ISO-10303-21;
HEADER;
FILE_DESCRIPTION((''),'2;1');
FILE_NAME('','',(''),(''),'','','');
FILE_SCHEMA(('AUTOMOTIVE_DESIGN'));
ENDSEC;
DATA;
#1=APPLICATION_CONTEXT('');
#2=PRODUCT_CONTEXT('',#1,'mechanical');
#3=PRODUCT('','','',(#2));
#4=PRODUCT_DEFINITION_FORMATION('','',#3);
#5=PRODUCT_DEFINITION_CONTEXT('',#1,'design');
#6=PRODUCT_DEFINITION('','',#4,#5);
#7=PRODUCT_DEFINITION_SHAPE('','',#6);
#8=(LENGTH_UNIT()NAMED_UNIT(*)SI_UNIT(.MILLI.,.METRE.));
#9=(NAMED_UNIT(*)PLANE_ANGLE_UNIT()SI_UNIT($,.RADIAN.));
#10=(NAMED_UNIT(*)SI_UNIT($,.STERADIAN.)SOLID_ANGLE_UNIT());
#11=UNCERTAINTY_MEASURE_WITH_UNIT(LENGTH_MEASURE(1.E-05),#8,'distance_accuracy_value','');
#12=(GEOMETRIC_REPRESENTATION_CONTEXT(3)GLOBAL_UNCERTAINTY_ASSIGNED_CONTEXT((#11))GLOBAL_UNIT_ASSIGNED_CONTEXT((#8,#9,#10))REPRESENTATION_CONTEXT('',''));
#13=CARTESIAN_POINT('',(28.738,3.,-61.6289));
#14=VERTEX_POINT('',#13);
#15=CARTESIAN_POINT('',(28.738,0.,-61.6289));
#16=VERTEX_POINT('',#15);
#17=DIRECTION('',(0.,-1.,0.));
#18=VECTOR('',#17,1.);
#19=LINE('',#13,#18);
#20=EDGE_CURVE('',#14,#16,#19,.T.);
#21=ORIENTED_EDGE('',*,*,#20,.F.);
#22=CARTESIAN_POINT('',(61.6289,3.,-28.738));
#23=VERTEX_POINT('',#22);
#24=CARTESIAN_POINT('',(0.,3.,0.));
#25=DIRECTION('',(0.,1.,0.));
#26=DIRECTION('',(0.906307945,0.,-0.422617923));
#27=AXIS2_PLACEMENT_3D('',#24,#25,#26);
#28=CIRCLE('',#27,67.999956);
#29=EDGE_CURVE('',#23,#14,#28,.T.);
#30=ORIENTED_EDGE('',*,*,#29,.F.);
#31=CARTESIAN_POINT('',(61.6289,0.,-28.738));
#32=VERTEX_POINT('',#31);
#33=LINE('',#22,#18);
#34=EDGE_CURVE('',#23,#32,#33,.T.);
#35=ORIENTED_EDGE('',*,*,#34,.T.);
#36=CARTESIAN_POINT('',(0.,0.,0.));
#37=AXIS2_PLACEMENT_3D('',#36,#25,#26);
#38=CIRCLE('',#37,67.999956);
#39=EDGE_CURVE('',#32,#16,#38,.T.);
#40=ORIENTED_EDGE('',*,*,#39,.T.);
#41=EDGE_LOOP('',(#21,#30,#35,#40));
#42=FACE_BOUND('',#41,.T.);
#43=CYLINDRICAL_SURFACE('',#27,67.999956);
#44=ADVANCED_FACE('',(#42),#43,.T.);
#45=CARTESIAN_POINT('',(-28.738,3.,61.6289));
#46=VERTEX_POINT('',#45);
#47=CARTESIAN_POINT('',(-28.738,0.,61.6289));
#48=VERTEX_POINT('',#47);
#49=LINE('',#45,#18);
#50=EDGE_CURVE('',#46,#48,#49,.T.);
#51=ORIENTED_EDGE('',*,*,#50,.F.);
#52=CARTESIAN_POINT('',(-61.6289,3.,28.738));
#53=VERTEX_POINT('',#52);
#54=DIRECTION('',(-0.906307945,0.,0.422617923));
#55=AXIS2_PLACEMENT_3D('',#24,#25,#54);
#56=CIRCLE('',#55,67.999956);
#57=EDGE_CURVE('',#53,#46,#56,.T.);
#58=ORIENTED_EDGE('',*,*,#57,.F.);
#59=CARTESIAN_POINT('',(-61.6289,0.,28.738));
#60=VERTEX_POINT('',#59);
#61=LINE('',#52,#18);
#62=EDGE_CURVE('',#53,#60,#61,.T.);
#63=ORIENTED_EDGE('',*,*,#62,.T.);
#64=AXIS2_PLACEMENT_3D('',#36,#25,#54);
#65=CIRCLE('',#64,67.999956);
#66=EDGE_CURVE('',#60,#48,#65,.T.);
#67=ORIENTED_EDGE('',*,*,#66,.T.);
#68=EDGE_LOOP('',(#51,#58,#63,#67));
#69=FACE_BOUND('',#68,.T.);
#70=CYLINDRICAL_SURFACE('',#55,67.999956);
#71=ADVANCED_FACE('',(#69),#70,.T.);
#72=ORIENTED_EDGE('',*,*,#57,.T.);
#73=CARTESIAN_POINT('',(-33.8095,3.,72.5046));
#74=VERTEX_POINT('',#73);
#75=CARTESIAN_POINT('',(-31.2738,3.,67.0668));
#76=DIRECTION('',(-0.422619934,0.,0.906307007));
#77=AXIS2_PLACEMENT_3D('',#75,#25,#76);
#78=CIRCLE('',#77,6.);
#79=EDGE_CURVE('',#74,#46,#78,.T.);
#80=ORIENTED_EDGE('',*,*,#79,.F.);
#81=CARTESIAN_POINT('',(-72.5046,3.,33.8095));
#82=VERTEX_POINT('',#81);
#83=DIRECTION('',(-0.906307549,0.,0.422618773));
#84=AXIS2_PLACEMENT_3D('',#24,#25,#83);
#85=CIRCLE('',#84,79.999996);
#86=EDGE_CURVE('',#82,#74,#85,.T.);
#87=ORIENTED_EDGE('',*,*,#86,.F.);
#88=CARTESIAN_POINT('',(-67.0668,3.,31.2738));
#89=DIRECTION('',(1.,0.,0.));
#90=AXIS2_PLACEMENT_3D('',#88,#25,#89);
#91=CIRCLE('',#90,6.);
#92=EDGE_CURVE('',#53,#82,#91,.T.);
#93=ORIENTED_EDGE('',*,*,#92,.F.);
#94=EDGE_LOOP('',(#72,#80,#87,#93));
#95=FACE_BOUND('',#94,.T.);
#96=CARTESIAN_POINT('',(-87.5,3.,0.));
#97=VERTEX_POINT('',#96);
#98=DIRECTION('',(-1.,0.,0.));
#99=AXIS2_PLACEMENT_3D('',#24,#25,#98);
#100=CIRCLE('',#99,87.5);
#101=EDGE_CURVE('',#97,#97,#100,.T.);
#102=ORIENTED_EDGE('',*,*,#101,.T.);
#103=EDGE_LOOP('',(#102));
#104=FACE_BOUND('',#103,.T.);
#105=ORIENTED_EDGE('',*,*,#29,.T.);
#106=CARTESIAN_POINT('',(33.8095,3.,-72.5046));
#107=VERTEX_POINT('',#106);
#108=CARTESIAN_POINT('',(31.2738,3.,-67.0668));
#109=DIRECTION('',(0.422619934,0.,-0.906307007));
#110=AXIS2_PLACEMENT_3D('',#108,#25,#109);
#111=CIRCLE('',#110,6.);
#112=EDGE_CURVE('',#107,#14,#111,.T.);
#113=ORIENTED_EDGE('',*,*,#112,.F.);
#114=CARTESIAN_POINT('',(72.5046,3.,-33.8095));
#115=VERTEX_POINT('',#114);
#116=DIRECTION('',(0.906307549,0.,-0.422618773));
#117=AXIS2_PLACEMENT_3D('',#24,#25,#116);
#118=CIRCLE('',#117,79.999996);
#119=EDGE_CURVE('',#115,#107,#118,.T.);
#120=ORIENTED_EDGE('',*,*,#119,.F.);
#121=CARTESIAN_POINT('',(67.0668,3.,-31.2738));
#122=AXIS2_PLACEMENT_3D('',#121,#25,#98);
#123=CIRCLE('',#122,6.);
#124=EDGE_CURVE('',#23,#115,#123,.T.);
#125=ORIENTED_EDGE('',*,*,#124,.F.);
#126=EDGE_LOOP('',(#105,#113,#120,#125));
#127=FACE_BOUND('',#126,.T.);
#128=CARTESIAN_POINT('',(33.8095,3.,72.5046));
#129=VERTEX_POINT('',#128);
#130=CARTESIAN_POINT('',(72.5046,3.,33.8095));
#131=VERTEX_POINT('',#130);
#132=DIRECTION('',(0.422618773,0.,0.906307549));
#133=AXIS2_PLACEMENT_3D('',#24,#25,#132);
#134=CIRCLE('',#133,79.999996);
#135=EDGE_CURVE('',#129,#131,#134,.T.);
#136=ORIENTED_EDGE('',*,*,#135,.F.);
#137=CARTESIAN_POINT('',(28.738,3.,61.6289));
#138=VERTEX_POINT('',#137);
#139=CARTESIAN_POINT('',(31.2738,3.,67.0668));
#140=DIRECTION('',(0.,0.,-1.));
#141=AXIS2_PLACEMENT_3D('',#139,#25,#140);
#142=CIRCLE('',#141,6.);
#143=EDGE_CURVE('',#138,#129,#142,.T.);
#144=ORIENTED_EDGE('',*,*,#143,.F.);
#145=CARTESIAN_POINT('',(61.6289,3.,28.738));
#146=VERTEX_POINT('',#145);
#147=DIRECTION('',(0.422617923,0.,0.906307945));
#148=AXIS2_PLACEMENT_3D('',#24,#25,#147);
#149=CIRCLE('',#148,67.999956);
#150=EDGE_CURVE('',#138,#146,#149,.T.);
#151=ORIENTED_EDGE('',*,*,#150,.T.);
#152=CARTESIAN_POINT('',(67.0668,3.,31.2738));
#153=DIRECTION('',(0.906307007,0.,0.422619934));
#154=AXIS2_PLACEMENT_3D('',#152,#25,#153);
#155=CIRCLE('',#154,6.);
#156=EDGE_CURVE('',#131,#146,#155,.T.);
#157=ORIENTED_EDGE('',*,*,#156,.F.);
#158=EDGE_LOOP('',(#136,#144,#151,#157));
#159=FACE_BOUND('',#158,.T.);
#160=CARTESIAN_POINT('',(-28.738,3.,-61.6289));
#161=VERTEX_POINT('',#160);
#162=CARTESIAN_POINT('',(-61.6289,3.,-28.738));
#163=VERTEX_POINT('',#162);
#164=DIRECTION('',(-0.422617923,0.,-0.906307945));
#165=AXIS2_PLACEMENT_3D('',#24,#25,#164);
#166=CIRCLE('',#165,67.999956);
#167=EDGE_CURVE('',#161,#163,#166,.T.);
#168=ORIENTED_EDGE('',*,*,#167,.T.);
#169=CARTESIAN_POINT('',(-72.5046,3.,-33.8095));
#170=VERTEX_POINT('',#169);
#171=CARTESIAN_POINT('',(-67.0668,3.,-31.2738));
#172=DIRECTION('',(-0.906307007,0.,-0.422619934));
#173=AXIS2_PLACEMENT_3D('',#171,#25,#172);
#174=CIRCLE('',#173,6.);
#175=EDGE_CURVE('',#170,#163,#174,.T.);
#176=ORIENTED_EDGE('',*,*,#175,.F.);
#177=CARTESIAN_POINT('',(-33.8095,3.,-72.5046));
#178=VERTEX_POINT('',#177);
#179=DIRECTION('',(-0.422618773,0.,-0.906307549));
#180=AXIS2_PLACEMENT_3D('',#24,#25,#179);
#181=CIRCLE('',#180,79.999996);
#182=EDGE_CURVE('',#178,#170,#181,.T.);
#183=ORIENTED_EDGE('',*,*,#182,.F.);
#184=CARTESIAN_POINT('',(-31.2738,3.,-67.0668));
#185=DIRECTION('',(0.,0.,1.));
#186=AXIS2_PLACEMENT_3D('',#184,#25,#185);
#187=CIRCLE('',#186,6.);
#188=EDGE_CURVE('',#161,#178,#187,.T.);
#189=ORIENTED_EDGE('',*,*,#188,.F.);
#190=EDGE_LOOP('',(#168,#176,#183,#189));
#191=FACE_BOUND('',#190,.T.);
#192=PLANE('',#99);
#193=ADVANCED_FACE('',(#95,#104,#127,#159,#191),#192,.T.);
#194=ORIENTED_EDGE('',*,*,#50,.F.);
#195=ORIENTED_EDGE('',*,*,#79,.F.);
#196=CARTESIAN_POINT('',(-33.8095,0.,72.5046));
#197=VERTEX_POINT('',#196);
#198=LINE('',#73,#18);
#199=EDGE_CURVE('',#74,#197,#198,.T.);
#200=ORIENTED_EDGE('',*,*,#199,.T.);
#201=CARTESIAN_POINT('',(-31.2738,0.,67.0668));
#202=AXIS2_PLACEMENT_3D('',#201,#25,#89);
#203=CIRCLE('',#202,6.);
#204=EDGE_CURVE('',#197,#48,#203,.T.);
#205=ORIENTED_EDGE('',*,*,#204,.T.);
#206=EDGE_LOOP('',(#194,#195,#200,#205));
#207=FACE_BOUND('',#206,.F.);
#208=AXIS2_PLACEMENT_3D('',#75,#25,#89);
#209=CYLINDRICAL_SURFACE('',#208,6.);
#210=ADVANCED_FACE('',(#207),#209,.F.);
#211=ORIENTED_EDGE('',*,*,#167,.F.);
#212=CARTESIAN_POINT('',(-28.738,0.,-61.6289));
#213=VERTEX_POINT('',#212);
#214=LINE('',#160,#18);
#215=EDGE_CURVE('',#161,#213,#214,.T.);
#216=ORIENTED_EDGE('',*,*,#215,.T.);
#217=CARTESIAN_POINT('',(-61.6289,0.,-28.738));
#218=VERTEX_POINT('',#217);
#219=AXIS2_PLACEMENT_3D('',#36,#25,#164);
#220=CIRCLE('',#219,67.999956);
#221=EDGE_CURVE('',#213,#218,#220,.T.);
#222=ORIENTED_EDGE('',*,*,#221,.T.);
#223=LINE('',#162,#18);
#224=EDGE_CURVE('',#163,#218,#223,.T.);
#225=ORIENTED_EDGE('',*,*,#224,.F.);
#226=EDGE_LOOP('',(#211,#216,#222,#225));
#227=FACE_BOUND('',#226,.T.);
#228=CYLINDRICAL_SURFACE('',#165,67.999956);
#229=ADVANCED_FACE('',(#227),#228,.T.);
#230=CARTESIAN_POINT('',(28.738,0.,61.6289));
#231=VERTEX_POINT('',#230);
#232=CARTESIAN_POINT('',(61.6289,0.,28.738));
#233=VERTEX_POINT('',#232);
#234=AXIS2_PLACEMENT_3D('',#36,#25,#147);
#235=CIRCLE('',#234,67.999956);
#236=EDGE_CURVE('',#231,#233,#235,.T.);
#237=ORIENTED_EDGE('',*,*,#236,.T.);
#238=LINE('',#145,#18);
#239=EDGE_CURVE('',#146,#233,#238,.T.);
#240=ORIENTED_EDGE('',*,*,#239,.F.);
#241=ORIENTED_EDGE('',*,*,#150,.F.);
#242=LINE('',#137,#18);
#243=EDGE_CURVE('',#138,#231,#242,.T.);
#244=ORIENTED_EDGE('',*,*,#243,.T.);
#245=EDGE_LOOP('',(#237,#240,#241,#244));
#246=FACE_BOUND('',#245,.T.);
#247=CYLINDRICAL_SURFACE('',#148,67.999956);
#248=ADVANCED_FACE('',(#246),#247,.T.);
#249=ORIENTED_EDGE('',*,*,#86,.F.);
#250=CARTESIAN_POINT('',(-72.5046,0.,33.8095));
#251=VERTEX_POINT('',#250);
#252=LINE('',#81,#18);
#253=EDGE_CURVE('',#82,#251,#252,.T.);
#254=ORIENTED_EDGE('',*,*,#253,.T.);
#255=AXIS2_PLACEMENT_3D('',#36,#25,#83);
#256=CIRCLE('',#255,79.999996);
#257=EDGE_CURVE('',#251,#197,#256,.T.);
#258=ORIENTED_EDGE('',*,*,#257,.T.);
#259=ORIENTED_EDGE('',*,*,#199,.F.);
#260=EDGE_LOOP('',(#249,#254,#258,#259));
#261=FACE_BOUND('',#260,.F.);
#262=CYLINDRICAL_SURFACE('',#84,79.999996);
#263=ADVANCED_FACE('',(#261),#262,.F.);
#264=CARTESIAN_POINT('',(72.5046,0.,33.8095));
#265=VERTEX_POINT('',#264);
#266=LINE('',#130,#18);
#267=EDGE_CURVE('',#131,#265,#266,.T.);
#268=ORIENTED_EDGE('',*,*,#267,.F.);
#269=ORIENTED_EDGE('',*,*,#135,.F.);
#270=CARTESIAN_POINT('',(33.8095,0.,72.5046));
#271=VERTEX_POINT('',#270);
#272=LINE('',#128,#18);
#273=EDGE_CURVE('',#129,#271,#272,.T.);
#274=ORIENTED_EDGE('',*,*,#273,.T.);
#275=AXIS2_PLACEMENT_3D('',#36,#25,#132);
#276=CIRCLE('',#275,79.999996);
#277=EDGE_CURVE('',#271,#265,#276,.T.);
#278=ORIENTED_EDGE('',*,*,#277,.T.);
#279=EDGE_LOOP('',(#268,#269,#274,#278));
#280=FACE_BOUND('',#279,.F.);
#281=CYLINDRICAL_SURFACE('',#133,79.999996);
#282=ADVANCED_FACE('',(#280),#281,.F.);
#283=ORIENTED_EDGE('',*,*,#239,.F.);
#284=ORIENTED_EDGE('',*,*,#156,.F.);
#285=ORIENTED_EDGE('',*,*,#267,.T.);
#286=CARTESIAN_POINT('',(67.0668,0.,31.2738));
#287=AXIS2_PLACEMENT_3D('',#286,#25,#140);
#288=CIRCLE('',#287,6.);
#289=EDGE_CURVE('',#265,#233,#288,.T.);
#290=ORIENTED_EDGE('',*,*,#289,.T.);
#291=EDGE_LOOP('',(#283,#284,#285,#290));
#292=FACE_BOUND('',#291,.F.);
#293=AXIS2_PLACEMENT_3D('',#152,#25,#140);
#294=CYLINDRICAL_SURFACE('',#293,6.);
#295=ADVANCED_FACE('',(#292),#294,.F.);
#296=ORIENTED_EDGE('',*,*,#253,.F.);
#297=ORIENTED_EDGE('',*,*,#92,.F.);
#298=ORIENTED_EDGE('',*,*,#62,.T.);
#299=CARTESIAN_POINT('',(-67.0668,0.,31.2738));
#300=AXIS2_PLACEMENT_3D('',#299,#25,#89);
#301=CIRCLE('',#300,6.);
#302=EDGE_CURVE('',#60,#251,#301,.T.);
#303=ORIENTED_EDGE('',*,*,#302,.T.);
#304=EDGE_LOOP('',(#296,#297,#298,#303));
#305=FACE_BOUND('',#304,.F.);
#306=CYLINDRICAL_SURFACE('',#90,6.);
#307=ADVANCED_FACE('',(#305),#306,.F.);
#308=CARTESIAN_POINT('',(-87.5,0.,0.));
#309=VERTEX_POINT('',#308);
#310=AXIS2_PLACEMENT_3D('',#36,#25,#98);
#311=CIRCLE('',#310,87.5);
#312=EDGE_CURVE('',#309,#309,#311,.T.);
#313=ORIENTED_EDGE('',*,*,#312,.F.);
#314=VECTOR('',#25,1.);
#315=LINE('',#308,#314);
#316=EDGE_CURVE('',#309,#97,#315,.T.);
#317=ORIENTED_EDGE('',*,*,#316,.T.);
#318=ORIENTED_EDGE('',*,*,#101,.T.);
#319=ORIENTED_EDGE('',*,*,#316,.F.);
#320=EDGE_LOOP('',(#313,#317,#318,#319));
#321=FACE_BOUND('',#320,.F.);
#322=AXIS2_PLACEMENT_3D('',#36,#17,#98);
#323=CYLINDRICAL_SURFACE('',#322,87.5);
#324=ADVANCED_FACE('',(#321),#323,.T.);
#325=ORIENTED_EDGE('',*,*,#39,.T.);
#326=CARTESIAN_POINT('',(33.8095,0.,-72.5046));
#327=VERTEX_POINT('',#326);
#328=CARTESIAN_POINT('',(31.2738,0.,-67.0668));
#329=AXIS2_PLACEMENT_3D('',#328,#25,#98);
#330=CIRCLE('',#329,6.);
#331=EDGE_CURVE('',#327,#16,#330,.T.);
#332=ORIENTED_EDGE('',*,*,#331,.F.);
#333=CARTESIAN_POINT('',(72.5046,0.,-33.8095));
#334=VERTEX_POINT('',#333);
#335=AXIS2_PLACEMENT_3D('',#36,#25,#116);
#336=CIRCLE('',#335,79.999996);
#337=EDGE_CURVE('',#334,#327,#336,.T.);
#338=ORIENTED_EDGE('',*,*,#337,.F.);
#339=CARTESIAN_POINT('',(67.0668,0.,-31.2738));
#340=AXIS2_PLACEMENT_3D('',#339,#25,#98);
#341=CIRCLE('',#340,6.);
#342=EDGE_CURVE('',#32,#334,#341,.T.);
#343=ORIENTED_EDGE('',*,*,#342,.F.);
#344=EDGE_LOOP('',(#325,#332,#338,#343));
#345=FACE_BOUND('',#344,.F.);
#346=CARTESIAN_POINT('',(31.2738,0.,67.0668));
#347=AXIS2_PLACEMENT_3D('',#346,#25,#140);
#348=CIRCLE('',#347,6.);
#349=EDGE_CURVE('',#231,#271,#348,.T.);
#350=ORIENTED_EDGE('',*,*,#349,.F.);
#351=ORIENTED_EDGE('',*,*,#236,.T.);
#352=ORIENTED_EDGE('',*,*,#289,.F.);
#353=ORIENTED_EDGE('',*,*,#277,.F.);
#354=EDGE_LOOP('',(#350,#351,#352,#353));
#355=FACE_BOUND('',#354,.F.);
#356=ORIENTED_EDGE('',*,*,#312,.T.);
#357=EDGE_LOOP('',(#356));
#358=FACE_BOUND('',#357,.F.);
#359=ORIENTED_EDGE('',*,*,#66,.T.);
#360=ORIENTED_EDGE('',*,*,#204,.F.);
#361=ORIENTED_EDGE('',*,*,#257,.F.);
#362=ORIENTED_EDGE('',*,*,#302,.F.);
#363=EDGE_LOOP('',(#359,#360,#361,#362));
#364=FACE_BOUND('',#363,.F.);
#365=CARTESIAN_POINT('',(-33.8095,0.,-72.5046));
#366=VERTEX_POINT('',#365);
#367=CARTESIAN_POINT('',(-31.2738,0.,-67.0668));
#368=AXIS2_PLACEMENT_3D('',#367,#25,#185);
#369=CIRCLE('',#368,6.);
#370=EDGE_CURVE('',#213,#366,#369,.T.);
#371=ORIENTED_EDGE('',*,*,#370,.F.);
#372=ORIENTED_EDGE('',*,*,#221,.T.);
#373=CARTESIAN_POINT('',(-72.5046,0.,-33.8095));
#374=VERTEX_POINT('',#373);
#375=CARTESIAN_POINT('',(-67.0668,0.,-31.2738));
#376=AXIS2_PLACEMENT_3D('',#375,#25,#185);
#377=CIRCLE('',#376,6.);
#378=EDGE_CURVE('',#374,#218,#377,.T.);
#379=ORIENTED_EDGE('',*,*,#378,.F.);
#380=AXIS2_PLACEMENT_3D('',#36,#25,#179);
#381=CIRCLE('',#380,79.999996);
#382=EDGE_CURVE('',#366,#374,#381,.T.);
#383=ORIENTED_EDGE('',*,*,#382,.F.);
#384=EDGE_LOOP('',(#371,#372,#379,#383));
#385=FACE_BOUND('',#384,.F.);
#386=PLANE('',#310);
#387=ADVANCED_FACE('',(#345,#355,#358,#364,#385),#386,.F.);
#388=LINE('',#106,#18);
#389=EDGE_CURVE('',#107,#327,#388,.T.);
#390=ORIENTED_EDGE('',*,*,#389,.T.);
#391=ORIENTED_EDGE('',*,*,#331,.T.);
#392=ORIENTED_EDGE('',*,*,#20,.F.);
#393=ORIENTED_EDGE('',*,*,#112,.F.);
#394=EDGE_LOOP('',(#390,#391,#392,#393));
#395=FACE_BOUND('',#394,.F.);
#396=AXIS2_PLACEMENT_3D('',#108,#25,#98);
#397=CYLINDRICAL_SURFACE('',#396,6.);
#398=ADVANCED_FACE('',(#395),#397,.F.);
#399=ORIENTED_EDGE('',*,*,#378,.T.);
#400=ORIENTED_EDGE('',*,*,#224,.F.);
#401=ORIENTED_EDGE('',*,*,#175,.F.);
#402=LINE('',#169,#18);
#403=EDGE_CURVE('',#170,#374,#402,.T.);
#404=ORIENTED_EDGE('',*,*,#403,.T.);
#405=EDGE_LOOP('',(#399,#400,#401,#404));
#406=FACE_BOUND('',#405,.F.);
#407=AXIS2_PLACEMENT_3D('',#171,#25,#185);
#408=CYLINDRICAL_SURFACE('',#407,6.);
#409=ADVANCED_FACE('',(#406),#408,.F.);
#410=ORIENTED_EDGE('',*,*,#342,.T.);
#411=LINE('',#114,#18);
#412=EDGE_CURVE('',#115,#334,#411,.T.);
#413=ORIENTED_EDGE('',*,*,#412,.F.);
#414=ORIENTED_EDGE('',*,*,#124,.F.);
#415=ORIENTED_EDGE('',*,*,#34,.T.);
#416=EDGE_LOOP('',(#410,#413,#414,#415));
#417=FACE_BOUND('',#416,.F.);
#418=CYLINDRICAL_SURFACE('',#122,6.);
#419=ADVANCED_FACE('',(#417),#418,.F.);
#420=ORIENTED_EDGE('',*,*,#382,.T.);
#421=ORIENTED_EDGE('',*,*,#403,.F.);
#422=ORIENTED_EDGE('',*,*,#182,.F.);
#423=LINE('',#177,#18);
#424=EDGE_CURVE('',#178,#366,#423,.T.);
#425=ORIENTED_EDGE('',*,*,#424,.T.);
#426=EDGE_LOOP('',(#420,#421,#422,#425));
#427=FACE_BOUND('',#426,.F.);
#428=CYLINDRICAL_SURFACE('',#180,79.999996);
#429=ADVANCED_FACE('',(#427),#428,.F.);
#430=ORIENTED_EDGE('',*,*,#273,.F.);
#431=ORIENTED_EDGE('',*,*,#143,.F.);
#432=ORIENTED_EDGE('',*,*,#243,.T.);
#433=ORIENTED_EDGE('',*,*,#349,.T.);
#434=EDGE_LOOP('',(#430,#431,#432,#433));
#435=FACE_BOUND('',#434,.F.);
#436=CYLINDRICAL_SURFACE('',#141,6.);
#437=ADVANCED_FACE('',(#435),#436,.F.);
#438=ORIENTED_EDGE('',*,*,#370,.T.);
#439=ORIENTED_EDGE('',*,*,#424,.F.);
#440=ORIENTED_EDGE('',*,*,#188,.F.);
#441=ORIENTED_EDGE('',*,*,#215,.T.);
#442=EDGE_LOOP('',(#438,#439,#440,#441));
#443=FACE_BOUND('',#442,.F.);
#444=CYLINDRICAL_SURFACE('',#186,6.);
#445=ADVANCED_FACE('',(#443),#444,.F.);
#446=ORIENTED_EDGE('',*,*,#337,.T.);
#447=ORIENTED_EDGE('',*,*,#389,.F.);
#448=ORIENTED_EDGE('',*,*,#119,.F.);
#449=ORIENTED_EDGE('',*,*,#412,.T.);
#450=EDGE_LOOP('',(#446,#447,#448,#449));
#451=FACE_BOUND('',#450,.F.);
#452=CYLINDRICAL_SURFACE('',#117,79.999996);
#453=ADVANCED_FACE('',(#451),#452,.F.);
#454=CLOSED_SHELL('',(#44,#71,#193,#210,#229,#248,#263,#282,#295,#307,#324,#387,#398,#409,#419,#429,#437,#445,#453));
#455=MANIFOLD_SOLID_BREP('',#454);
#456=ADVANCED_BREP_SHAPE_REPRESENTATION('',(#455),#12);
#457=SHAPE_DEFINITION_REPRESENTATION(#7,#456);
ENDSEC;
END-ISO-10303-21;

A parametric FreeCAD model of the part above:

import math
import FreeCAD as App
import Part
import Sketcher

V = App.Vector

doc = App.newDocument("Part")
body = doc.addObject("PartDesign::Body", "Body")

# Sketch on XZ plane
sketch1 = body.newObject("Sketcher::SketchObject", "Sketch")
sketch1.AttachmentSupport = (doc.getObject("XZ_Plane"), [""])
sketch1.MapMode = "FlatFace"
sketch1.addGeometry(Part.Circle(V(0, 0, 0), V(0, 0, 1), 88), False)
sketch1.addConstraint([
    Sketcher.Constraint("Coincident", 0, 3, -1, 1),
    Sketcher.Constraint("Diameter", 0, 175.0),
])
pad1 = body.newObject("PartDesign::Pad", "Pad")
pad1.Profile = sketch1
pad1.Length = 3
pad1.Reversed = True

# Sketch on XZ plane
sketch2 = body.newObject("Sketcher::SketchObject", "Sketch001")
sketch2.AttachmentSupport = (doc.getObject("XZ_Plane"), [""])
sketch2.MapMode = "FlatFace"
sketch2.AttachmentOffset = App.Placement(V(0, 0, -3), App.Rotation())
sketch2.addGeometry([
    Part.ArcOfCircle(Part.Circle(V(-67, 31, 0), V(0, 0, 1), 6), math.radians(155), math.radians(335)),
    Part.ArcOfCircle(Part.Circle(V(0, 0, 0), V(0, 0, 1), 80), math.radians(115), math.radians(155)),
    Part.ArcOfCircle(Part.Circle(V(-31, 67, 0), V(0, 0, 1), 6), math.radians(-65), math.radians(115)),
    Part.ArcOfCircle(Part.Circle(V(0, 0, 0), V(0, 0, 1), 68), math.radians(115), math.radians(155)),
], False)
sketch2.addConstraint([
    Sketcher.Constraint("Tangent", 0, 1, 1, 2),
    Sketcher.Constraint("Tangent", 1, 1, 2, 2),
    Sketcher.Constraint("Tangent", 2, 1, 3, 1),
    Sketcher.Constraint("Tangent", 3, 2, 0, 2),
    Sketcher.Constraint("Coincident", 1, 3, -1, 1),
    Sketcher.Constraint("Coincident", 3, 3, -1, 1),
    Sketcher.Constraint("Radius", 0, 6.0),
    Sketcher.Constraint("Radius", 1, 80.0),
    Sketcher.Constraint("DistanceX", 2, 1, -1, 1, 28.738),
    Sketcher.Constraint("DistanceX", 3, 2, -1, 1, 61.629),
])
pocket1 = body.newObject("PartDesign::Pocket", "Pocket")
pocket1.Profile = sketch2
pocket1.Type = "ThroughAll"
pocket1.Reversed = True
doc.recompute()

polarpattern = body.newObject("PartDesign::PolarPattern", "PolarPattern")
polarpattern.Originals = [pocket1]
polarpattern.Axis = (doc.getObject("Y_Axis"), [""])
polarpattern.Angle = 360
polarpattern.Occurrences = 4
body.Tip = polarpattern

doc.recompute()
